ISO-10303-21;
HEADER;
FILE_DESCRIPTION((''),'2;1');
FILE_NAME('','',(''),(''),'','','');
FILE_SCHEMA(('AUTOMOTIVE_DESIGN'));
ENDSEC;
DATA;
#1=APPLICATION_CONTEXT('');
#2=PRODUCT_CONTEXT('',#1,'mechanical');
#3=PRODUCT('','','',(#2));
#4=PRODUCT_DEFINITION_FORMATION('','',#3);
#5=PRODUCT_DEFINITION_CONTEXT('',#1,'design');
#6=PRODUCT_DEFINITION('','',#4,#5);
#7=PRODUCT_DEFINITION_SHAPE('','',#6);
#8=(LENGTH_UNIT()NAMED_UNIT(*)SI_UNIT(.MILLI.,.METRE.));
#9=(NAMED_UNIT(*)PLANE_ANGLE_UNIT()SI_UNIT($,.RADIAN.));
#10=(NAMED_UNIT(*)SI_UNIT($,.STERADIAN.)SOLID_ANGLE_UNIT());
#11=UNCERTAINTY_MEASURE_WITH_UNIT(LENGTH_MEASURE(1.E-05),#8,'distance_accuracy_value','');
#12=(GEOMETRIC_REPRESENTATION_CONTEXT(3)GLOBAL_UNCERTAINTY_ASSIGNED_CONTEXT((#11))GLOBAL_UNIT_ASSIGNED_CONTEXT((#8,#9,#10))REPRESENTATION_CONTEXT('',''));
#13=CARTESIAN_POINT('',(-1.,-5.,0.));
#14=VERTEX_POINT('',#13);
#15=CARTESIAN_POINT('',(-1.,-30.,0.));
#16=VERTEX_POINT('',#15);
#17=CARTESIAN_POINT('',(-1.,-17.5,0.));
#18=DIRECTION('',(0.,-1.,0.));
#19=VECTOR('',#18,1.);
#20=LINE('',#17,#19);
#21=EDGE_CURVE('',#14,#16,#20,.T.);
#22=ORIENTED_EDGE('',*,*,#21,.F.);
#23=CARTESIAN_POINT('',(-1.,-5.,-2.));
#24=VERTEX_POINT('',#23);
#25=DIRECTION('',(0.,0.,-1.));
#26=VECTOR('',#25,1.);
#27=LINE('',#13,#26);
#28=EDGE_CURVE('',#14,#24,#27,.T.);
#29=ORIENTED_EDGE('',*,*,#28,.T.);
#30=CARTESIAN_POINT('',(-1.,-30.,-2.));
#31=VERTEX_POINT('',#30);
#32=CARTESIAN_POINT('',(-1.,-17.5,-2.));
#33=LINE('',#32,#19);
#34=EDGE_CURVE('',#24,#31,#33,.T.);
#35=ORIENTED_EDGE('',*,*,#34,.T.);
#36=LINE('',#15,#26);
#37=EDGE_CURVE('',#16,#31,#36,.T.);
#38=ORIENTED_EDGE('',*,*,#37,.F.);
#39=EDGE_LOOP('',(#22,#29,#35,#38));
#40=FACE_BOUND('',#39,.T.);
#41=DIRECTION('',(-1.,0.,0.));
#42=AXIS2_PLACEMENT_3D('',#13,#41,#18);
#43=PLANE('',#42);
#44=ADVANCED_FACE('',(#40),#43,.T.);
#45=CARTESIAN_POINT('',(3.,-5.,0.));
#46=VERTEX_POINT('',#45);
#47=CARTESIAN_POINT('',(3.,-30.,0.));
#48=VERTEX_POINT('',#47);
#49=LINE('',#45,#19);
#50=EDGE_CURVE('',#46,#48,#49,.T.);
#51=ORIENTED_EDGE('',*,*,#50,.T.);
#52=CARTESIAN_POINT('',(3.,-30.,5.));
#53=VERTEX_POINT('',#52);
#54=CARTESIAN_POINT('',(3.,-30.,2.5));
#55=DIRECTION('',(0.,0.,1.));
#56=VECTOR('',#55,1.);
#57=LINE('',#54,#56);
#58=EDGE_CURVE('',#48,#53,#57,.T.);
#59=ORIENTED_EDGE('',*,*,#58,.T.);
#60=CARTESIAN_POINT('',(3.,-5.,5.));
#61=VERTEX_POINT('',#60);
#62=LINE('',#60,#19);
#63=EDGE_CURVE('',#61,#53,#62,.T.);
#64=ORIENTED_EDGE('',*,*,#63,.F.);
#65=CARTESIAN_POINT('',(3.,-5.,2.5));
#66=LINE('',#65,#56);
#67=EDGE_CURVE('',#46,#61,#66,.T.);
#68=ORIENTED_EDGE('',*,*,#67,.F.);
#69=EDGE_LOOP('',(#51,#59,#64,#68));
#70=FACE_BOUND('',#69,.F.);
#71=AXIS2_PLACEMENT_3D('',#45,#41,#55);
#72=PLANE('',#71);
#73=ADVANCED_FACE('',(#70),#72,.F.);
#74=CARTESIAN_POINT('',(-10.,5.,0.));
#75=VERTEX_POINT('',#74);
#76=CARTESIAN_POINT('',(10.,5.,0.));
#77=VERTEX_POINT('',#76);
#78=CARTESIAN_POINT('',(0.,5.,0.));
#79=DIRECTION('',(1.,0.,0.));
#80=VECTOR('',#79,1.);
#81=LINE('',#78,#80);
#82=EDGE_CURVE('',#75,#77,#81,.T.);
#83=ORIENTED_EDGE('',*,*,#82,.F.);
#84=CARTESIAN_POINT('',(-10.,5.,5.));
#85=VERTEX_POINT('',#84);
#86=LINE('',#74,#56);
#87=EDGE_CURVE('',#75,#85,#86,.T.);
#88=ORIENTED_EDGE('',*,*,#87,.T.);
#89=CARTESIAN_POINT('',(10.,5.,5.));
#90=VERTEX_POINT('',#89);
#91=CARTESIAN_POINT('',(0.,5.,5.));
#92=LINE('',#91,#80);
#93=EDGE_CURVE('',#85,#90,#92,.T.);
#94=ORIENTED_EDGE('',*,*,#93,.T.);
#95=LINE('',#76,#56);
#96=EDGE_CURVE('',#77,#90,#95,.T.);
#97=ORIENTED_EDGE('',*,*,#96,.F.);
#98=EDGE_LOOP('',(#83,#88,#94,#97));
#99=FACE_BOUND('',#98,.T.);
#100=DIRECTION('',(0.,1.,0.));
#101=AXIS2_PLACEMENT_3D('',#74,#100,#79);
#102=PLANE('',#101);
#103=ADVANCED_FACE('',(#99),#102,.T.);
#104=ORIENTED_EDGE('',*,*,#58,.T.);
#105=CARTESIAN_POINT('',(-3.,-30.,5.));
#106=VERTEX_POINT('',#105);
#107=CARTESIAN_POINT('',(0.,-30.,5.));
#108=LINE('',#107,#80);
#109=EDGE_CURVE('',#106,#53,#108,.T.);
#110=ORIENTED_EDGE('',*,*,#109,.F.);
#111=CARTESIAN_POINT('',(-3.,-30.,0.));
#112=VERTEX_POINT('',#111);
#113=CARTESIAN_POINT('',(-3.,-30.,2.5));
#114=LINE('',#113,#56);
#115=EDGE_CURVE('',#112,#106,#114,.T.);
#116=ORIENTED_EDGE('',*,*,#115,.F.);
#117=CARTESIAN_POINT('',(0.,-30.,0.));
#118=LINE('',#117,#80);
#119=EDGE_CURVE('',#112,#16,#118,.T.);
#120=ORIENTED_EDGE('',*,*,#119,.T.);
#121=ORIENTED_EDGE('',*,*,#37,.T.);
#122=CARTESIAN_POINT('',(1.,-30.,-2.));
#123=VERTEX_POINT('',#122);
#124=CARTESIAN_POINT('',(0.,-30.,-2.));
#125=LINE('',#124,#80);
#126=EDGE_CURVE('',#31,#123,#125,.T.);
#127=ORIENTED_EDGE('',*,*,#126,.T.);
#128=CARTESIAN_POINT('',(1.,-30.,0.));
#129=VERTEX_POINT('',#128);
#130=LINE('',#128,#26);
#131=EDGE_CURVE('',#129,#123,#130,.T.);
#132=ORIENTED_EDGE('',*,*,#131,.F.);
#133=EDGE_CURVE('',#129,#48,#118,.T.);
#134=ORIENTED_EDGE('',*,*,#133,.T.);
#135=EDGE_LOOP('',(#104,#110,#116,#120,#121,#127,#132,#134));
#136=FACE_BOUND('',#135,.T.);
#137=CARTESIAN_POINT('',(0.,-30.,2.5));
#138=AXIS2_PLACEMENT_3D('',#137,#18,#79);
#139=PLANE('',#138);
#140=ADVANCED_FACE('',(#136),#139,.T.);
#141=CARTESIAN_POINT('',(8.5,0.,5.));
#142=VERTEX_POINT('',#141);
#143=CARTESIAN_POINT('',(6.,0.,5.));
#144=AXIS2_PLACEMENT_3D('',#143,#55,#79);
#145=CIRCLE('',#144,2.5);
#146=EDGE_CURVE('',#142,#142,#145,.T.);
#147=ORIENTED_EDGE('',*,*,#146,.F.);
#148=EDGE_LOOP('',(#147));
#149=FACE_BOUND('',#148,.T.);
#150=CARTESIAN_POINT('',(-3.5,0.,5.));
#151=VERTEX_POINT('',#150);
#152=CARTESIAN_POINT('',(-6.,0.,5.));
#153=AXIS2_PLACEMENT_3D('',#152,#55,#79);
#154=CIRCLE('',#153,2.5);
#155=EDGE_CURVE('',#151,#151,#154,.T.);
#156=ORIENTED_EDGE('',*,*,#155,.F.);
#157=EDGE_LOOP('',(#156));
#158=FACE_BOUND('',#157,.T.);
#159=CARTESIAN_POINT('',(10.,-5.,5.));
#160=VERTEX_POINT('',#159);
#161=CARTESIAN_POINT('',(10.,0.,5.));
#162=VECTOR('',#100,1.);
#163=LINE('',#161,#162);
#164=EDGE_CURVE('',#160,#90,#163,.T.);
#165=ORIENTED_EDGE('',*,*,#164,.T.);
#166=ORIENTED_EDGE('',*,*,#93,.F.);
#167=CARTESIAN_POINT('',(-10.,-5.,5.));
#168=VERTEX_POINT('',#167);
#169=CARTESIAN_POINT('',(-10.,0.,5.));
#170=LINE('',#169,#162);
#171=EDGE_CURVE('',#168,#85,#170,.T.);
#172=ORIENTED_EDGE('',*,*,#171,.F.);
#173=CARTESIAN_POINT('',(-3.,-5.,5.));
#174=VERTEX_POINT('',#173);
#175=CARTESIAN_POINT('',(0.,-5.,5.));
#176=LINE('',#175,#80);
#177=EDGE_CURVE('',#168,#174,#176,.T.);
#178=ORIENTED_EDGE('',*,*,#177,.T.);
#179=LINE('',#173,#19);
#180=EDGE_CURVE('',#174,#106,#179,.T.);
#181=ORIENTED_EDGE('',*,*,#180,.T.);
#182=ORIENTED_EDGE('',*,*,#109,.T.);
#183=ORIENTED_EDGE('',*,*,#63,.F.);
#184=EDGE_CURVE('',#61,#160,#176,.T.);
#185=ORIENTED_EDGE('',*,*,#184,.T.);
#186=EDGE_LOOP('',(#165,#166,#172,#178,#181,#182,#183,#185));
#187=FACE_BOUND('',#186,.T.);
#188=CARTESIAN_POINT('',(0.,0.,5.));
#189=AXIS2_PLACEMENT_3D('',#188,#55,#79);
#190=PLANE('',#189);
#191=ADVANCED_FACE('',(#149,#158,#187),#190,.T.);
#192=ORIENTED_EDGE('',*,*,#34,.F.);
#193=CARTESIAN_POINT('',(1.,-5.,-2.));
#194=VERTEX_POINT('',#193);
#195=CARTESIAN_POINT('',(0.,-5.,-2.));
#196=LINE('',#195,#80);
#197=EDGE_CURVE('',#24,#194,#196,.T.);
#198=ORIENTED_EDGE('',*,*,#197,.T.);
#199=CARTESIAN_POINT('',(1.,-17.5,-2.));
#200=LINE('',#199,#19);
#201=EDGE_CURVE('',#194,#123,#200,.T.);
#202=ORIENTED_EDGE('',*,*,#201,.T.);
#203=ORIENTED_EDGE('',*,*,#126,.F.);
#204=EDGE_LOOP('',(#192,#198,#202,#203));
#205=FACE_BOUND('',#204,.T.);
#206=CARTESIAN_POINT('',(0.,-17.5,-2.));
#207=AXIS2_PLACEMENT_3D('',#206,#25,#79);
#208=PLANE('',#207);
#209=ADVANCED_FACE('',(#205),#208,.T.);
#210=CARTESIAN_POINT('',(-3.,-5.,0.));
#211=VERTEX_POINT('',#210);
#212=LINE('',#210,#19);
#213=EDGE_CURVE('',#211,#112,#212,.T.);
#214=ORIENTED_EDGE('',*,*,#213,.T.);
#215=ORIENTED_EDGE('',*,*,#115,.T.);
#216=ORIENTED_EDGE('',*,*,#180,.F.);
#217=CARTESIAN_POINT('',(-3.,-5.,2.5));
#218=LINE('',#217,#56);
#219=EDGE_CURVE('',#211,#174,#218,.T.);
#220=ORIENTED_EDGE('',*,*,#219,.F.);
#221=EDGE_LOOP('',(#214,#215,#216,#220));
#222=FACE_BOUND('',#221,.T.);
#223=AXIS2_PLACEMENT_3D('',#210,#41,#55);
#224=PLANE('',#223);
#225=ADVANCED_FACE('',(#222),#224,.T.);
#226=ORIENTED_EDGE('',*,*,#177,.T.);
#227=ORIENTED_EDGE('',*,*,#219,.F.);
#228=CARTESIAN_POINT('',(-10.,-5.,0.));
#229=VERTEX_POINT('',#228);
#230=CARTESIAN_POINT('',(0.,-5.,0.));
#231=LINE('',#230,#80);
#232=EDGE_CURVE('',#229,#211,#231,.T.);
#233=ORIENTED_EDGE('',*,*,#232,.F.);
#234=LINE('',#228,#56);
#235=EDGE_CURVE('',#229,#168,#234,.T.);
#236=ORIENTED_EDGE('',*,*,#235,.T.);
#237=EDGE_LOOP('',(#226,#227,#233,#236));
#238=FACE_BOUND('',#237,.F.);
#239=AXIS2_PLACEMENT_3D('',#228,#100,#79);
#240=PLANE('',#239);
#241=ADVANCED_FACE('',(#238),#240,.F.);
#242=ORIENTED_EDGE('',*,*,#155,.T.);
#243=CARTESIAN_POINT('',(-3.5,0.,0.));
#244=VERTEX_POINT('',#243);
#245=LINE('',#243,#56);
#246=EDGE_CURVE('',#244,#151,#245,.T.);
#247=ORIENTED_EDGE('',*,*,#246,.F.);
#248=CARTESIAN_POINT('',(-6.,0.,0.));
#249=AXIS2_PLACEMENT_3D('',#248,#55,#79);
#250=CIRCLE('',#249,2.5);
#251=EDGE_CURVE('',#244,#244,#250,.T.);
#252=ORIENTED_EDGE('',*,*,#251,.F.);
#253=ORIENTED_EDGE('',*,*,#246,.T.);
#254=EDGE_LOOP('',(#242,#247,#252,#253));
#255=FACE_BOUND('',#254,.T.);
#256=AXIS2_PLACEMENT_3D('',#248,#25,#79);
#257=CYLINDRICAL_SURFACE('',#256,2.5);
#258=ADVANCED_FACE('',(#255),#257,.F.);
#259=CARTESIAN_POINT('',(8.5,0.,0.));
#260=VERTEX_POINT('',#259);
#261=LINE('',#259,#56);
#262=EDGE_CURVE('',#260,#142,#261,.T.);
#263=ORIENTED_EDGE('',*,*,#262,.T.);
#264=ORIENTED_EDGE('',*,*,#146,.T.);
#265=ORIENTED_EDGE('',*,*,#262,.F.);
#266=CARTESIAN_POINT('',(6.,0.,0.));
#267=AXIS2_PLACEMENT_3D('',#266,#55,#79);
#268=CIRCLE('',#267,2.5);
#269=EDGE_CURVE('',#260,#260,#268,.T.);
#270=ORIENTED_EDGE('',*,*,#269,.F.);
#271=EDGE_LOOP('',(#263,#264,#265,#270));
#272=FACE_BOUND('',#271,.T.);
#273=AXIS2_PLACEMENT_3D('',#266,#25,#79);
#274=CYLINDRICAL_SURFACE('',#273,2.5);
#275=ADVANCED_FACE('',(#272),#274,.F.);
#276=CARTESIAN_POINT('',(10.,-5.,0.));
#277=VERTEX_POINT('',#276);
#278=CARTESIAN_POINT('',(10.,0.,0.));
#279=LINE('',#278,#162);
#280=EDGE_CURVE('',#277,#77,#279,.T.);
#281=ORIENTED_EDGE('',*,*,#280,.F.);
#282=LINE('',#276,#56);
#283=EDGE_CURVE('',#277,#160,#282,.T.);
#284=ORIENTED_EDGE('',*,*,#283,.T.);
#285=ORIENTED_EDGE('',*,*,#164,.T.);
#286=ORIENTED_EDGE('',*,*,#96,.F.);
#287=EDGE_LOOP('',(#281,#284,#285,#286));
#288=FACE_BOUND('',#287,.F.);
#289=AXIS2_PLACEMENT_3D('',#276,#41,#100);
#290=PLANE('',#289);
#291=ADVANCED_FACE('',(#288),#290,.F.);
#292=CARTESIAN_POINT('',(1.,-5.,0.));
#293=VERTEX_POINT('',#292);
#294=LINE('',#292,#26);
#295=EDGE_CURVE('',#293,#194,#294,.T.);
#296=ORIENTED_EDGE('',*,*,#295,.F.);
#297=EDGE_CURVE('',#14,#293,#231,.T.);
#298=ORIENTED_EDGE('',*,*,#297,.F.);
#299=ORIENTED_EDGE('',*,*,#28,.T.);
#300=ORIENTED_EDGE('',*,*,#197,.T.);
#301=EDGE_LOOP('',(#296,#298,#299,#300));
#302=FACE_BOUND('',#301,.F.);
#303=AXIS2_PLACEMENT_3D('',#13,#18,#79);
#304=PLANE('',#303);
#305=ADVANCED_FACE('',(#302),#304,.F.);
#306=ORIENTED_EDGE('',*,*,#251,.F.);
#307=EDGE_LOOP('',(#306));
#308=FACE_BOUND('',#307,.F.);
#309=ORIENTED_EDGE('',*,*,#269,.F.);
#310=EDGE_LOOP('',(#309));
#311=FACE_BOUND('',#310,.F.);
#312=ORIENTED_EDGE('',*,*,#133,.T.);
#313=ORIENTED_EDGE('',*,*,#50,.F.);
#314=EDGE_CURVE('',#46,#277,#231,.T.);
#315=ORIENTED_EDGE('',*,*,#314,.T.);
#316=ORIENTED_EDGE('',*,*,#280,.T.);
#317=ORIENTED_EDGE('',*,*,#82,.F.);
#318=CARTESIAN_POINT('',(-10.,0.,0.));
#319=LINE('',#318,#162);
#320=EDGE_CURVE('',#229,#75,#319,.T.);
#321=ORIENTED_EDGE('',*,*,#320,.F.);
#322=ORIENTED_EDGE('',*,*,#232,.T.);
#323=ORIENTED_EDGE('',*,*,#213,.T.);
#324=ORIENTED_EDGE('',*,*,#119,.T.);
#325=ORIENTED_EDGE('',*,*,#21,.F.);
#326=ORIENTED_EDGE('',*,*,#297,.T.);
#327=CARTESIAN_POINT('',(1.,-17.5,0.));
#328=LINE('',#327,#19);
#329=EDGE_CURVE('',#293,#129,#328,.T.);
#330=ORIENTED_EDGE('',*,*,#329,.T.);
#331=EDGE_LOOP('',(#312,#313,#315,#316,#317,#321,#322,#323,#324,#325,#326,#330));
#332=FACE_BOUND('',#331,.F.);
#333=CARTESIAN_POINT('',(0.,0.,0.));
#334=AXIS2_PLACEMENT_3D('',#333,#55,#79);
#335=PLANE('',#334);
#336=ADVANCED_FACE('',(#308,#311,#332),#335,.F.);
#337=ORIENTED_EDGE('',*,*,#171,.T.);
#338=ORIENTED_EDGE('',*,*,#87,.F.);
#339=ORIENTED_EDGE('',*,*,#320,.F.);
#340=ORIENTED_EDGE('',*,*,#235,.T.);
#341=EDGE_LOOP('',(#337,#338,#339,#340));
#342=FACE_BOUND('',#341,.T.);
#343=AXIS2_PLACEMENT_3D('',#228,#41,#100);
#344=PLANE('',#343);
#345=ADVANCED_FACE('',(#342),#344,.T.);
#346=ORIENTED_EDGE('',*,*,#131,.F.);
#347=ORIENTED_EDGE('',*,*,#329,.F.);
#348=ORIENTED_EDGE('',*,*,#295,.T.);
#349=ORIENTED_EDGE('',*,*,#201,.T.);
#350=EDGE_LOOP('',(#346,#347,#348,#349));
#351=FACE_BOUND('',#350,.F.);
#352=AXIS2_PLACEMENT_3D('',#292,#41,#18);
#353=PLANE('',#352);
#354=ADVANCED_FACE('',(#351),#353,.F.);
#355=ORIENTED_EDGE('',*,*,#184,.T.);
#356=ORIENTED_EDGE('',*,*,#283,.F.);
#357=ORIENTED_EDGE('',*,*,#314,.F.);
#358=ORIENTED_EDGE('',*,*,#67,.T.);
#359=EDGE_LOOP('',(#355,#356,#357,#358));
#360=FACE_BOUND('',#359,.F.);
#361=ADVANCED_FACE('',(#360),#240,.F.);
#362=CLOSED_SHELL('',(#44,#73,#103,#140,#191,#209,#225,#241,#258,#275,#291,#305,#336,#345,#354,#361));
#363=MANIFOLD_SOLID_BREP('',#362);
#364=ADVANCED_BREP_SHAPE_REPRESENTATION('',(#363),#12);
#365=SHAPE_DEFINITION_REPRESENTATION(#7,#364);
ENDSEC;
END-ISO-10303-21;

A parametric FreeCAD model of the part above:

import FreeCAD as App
import Part
import Sketcher

V = App.Vector
Q = App.Units.Quantity


def add_polygon(sketch, points):
    """Adds a closed chain of lines whose ends are joined by coincident constraints."""
    first, n = sketch.GeometryCount, len(points)
    for a, b in zip(points, points[1:] + points[:1]):
        sketch.addGeometry(Part.LineSegment(App.Vector(*a, 0), App.Vector(*b, 0)), False)
    for i in range(n):
        sketch.addConstraint(Sketcher.Constraint("Coincident", first + i, 2, first + (i + 1) % n, 1))

doc = App.newDocument("Part")
params = doc.addObject("Spreadsheet::Sheet", "Params")
for row, (alias, value) in enumerate([
    ("sketch1_diameter", "5 mm"),
    ("sketch1_width", "20 mm"),
    ("sketch1_height", "10 mm"),
    ("pad1_length", "5 mm"),
    ("sketch2_width", "6 mm"),
    ("sketch2_height", "5 mm"),
    ("pad2_length", "25 mm"),
    ("sketch3_width", "2 mm"),
    ("sketch3_height", "25 mm"),
    ("pad3_length", "2 mm"),
], start=1):
    params.set(f"A{row}", alias)
    params.set(f"B{row}", "=" + value)
    params.setAlias(f"B{row}", alias)

body = doc.addObject("PartDesign::Body", "Body")

sketch1 = body.newObject("Sketcher::SketchObject", "Sketch")
sketch1.AttachmentSupport = (doc.getObject("XY_Plane"), [""])
sketch1.MapMode = "FlatFace"
add_polygon(sketch1, [(-10, 5), (-10, -5), (10, -5), (10, 5)])
sketch1.addGeometry(Part.Circle(V(-6, 0, 0), V(0, 0, 1), 2.5), False)
sketch1.addGeometry(Part.Circle(V(6, 0, 0), V(0, 0, 1), 2.5), False)
sketch1.addConstraint([
    Sketcher.Constraint("Vertical", 0),
    Sketcher.Constraint("Horizontal", 1),
    Sketcher.Constraint("Vertical", 2),
    Sketcher.Constraint("Horizontal", 3),
    Sketcher.Constraint("Equal", 4, 5),
    Sketcher.Constraint("Symmetric", 4, 3, 5, 3, -1, 1),
    Sketcher.Constraint("Symmetric", 0, 2, 2, 2, -1, 1),
    Sketcher.Constraint("PointOnObject", 4, 3, -1),
    Sketcher.Constraint("Diameter", 4, Q("5 mm")),
    Sketcher.Constraint("DistanceX", 1, 1, 1, 2, Q("20 mm")),
    Sketcher.Constraint("DistanceY", 0, 2, 0, 1, Q("10 mm")),
    Sketcher.Constraint("DistanceX", 4, 3, -1, 1, Q("6 mm")),
])
sketch1.setExpression("Constraints[12]", "Params.sketch1_diameter")
sketch1.setExpression("Constraints[13]", "Params.sketch1_width")
sketch1.setExpression("Constraints[14]", "Params.sketch1_height")
pad1 = body.newObject("PartDesign::Pad", "Pad")
pad1.Profile = sketch1
pad1.setExpression("Length", "Params.pad1_length")

sketch2 = body.newObject("Sketcher::SketchObject", "Sketch001")
sketch2.AttachmentSupport = (doc.getObject("XZ_Plane"), [""])
sketch2.MapMode = "FlatFace"
sketch2.AttachmentOffset = App.Placement(V(0, 0, 5), App.Rotation())
add_polygon(sketch2, [(-3, 5), (-3, 0), (3, 0), (3, 5)])
sketch2.addConstraint([
    Sketcher.Constraint("Vertical", 0),
    Sketcher.Constraint("Horizontal", 1),
    Sketcher.Constraint("Vertical", 2),
    Sketcher.Constraint("Horizontal", 3),
    Sketcher.Constraint("Symmetric", 0, 2, 1, 2, -1, 1),
    Sketcher.Constraint("DistanceX", 1, 1, 1, 2, Q("6 mm")),
    Sketcher.Constraint("DistanceY", 0, 2, 0, 1, Q("5 mm")),
])
sketch2.setExpression("Constraints[9]", "Params.sketch2_width")
sketch2.setExpression("Constraints[10]", "Params.sketch2_height")
pad2 = body.newObject("PartDesign::Pad", "Pad001")
pad2.Profile = sketch2
pad2.setExpression("Length", "Params.pad2_length")

sketch3 = body.newObject("Sketcher::SketchObject", "Sketch002")
sketch3.AttachmentSupport = (doc.getObject("XY_Plane"), [""])
sketch3.MapMode = "FlatFace"
add_polygon(sketch3, [(-1, -30), (-1, -5), (1, -5), (1, -30)])
sketch3.addConstraint([
    Sketcher.Constraint("Vertical", 0),
    Sketcher.Constraint("Horizontal", 1),
    Sketcher.Constraint("Vertical", 2),
    Sketcher.Constraint("Horizontal", 3),
    Sketcher.Constraint("DistanceX", 1, 1, 1, 2, Q("2 mm")),
    Sketcher.Constraint("DistanceY", 0, 1, 0, 2, Q("25 mm")),
    Sketcher.Constraint("DistanceX", 0, 2, -1, 1, Q("1 mm")),
    Sketcher.Constraint("DistanceY", 0, 2, -1, 1, Q("5 mm")),
])
sketch3.setExpression("Constraints[8]", "Params.sketch3_width")
sketch3.setExpression("Constraints[9]", "Params.sketch3_height")
pad3 = body.newObject("PartDesign::Pad", "Pad002")
pad3.Profile = sketch3
pad3.setExpression("Length", "Params.pad3_length")
pad3.Reversed = True

doc.recompute()
